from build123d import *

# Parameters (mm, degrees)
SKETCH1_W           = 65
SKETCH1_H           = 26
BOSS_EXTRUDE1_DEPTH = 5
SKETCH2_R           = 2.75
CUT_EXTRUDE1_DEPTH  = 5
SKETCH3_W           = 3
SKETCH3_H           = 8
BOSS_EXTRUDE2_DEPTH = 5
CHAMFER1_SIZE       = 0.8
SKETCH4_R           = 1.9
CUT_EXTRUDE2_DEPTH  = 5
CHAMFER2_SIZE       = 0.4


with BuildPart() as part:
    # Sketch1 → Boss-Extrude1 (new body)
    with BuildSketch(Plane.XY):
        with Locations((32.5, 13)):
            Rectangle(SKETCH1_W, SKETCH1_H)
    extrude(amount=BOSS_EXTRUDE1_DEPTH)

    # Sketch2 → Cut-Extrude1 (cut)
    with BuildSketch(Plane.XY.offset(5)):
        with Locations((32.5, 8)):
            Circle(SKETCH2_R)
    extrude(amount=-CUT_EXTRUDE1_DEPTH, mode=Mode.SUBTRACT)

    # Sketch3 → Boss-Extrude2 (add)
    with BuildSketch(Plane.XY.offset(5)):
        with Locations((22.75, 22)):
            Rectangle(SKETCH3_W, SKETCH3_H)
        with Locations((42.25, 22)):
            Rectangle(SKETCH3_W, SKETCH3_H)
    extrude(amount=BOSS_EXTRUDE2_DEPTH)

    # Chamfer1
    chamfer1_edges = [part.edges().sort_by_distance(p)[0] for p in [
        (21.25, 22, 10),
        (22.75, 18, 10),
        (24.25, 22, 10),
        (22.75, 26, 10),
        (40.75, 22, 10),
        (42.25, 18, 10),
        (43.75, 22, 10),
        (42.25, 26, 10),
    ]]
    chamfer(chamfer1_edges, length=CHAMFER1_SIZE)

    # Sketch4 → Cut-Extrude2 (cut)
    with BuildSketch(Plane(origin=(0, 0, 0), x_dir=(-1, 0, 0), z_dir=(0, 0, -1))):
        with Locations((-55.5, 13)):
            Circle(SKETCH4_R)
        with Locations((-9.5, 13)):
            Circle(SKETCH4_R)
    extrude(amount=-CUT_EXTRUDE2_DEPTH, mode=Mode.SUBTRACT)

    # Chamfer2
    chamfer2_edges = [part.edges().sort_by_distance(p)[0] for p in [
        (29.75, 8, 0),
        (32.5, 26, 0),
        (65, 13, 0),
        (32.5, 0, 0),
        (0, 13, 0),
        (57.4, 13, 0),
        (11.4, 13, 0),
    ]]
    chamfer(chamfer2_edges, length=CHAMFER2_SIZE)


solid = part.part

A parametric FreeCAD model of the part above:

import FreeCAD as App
import Part
import Sketcher


def edges_at(feature, points):
    """Names of the edges that pass closest to the given points."""
    edges = feature.Shape.Edges
    near = lambda p: min(range(len(edges)), key=lambda i: edges[i].distToShape(Part.Vertex(*p))[0])
    return sorted({f"Edge{near(p) + 1}" for p in points})

doc = App.newDocument("Part")
body = doc.addObject("PartDesign::Body", "Body")

sketch1 = body.newObject("Sketcher::SketchObject", "Sketch")
sketch1.AttachmentSupport = (doc.getObject("XY_Plane"), [""])
sketch1.MapMode = "FlatFace"
sketch1.addGeometry([
    Part.LineSegment(App.Vector(0, 26, 0), App.Vector(0, 0, 0)),
    Part.LineSegment(App.Vector(0, 0, 0), App.Vector(65, 0, 0)),
    Part.LineSegment(App.Vector(65, 0, 0), App.Vector(65, 26, 0)),
    Part.LineSegment(App.Vector(65, 26, 0), App.Vector(0, 26, 0)),
], False)
sketch1.addConstraint([
    Sketcher.Constraint("Coincident", 0, 2, 1, 1),
    Sketcher.Constraint("Coincident", 1, 2, 2, 1),
    Sketcher.Constraint("Coincident", 2, 2, 3, 1),
    Sketcher.Constraint("Coincident", 3, 2, 0, 1),
    Sketcher.Constraint("Vertical", 0),
    Sketcher.Constraint("Horizontal", 1),
    Sketcher.Constraint("Vertical", 2),
    Sketcher.Constraint("Horizontal", 3),
    Sketcher.Constraint("Coincident", 0, 2, -1, 1),
    Sketcher.Constraint("DistanceX", 1, 1, 1, 2, 65.0),
    Sketcher.Constraint("DistanceY", 0, 2, 0, 1, 26.0),
])
pad1 = body.newObject("PartDesign::Pad", "Pad")
pad1.Profile = sketch1
pad1.Length = 5

sketch2 = body.newObject("Sketcher::SketchObject", "Sketch001")
sketch2.AttachmentSupport = (doc.getObject("XY_Plane"), [""])
sketch2.MapMode = "FlatFace"
sketch2.AttachmentOffset = App.Placement(App.Vector(0, 0, 5), App.Rotation())
sketch2.addGeometry(Part.Circle(App.Vector(32.5, 8, 0), App.Vector(0, 0, 1), 2.8), False)
sketch2.addConstraint([
    Sketcher.Constraint("Diameter", 0, 5.5),
    Sketcher.Constraint("DistanceY", -1, 1, 0, 3, 8.0),
    Sketcher.Constraint("DistanceX", -1, 1, 0, 3, 32.5),
])
pocket1 = body.newObject("PartDesign::Pocket", "Pocket")
pocket1.Profile = sketch2
pocket1.Length = 5

sketch3 = body.newObject("Sketcher::SketchObject", "Sketch002")
sketch3.AttachmentSupport = (doc.getObject("XY_Plane"), [""])
sketch3.MapMode = "FlatFace"
sketch3.AttachmentOffset = App.Placement(App.Vector(0, 0, 5), App.Rotation())
sketch3.addGeometry([
    Part.LineSegment(App.Vector(21.2, 26, 0), App.Vector(21.2, 18, 0)),
    Part.LineSegment(App.Vector(21.2, 18, 0), App.Vector(24.2, 18, 0)),
    Part.LineSegment(App.Vector(24.2, 18, 0), App.Vector(24.2, 26, 0)),
    Part.LineSegment(App.Vector(24.2, 26, 0), App.Vector(21.2, 26, 0)),
    Part.LineSegment(App.Vector(40.8, 26, 0), App.Vector(40.8, 18, 0)),
    Part.LineSegment(App.Vector(40.8, 18, 0), App.Vector(43.8, 18, 0)),
    Part.LineSegment(App.Vector(43.8, 18, 0), App.Vector(43.8, 26, 0)),
    Part.LineSegment(App.Vector(43.8, 26, 0), App.Vector(40.8, 26, 0)),
], False)
sketch3.addConstraint([
    Sketcher.Constraint("Coincident", 0, 2, 1, 1),
    Sketcher.Constraint("Coincident", 1, 2, 2, 1),
    Sketcher.Constraint("Coincident", 2, 2, 3, 1),
    Sketcher.Constraint("Coincident", 3, 2, 0, 1),
    Sketcher.Constraint("Coincident", 4, 2, 5, 1),
    Sketcher.Constraint("Coincident", 5, 2, 6, 1),
    Sketcher.Constraint("Coincident", 6, 2, 7, 1),
    Sketcher.Constraint("Coincident", 7, 2, 4, 1),
    Sketcher.Constraint("Vertical", 0),
    Sketcher.Constraint("Horizontal", 1),
    Sketcher.Constraint("Vertical", 2),
    Sketcher.Constraint("Horizontal", 3),
    Sketcher.Constraint("Vertical", 4),
    Sketcher.Constraint("Horizontal", 5),
    Sketcher.Constraint("Vertical", 6),
    Sketcher.Constraint("Horizontal", 7),
    Sketcher.Constraint("Horizontal", 1, 2, 4, 2),
    Sketcher.Constraint("Horizontal", 3, 2, 6, 2),
    Sketcher.Constraint("Equal", 3, 5),
    Sketcher.Constraint("DistanceX", 1, 1, 1, 2, 3.0),
    Sketcher.Constraint("DistanceY", 0, 2, 0, 1, 8.0),
    Sketcher.Constraint("DistanceY", -1, 1, 0, 2, 18.0),
    Sketcher.Constraint("DistanceX", 1, 2, 4, 2, 16.5),
    Sketcher.Constraint("DistanceX", -1, 1, 0, 2, 21.25),
])
pad2 = body.newObject("PartDesign::Pad", "Pad001")
pad2.Profile = sketch3
pad2.Length = 5
doc.recompute()

chamfer = body.newObject("PartDesign::Chamfer", "Chamfer")
chamfer.Base = (pad2, edges_at(pad2, [
    (21.25, 22, 10),
    (22.75, 18, 10),
    (24.25, 22, 10),
    (22.75, 26, 10),
    (40.75, 22, 10),
    (42.25, 18, 10),
    (43.75, 22, 10),
    (42.25, 26, 10),
]))
chamfer.Size = 0.8

sketch4 = body.newObject("Sketcher::SketchObject", "Sketch003")
sketch4.AttachmentSupport = (doc.getObject("XY_Plane"), [""])
sketch4.MapMode = "FlatFace"
sketch4.addGeometry([
    Part.Circle(App.Vector(55.5, 13, 0), App.Vector(0, 0, 1), 1.9),
    Part.Circle(App.Vector(9.5, 13, 0), App.Vector(0, 0, 1), 1.9),
], False)
sketch4.addConstraint([
    Sketcher.Constraint("Equal", 0, 1),
    Sketcher.Constraint("Horizontal", 0, 3, 1, 3),
    Sketcher.Constraint("Diameter", 0, 3.8),
    Sketcher.Constraint("DistanceY", -1, 1, 0, 3, 13.0),
    Sketcher.Constraint("DistanceX", 1, 3, 0, 3, 46.0),
    Sketcher.Constraint("DistanceX", -1, 1, 0, 3, 55.5),
])
pocket2 = body.newObject("PartDesign::Pocket", "Pocket001")
pocket2.Profile = sketch4
pocket2.Length = 5
pocket2.Reversed = True
doc.recompute()

chamfer2 = body.newObject("PartDesign::Chamfer", "Chamfer001")
chamfer2.Base = (pocket2, edges_at(pocket2, [
    (29.75, 8, 0),
    (32.5, 26, 0),
    (65, 13, 0),
    (32.5, 0, 0),
    (0, 13, 0),
    (57.4, 13, 0),
    (11.4, 13, 0),
]))
chamfer2.Size = 0.4

doc.recompute()
